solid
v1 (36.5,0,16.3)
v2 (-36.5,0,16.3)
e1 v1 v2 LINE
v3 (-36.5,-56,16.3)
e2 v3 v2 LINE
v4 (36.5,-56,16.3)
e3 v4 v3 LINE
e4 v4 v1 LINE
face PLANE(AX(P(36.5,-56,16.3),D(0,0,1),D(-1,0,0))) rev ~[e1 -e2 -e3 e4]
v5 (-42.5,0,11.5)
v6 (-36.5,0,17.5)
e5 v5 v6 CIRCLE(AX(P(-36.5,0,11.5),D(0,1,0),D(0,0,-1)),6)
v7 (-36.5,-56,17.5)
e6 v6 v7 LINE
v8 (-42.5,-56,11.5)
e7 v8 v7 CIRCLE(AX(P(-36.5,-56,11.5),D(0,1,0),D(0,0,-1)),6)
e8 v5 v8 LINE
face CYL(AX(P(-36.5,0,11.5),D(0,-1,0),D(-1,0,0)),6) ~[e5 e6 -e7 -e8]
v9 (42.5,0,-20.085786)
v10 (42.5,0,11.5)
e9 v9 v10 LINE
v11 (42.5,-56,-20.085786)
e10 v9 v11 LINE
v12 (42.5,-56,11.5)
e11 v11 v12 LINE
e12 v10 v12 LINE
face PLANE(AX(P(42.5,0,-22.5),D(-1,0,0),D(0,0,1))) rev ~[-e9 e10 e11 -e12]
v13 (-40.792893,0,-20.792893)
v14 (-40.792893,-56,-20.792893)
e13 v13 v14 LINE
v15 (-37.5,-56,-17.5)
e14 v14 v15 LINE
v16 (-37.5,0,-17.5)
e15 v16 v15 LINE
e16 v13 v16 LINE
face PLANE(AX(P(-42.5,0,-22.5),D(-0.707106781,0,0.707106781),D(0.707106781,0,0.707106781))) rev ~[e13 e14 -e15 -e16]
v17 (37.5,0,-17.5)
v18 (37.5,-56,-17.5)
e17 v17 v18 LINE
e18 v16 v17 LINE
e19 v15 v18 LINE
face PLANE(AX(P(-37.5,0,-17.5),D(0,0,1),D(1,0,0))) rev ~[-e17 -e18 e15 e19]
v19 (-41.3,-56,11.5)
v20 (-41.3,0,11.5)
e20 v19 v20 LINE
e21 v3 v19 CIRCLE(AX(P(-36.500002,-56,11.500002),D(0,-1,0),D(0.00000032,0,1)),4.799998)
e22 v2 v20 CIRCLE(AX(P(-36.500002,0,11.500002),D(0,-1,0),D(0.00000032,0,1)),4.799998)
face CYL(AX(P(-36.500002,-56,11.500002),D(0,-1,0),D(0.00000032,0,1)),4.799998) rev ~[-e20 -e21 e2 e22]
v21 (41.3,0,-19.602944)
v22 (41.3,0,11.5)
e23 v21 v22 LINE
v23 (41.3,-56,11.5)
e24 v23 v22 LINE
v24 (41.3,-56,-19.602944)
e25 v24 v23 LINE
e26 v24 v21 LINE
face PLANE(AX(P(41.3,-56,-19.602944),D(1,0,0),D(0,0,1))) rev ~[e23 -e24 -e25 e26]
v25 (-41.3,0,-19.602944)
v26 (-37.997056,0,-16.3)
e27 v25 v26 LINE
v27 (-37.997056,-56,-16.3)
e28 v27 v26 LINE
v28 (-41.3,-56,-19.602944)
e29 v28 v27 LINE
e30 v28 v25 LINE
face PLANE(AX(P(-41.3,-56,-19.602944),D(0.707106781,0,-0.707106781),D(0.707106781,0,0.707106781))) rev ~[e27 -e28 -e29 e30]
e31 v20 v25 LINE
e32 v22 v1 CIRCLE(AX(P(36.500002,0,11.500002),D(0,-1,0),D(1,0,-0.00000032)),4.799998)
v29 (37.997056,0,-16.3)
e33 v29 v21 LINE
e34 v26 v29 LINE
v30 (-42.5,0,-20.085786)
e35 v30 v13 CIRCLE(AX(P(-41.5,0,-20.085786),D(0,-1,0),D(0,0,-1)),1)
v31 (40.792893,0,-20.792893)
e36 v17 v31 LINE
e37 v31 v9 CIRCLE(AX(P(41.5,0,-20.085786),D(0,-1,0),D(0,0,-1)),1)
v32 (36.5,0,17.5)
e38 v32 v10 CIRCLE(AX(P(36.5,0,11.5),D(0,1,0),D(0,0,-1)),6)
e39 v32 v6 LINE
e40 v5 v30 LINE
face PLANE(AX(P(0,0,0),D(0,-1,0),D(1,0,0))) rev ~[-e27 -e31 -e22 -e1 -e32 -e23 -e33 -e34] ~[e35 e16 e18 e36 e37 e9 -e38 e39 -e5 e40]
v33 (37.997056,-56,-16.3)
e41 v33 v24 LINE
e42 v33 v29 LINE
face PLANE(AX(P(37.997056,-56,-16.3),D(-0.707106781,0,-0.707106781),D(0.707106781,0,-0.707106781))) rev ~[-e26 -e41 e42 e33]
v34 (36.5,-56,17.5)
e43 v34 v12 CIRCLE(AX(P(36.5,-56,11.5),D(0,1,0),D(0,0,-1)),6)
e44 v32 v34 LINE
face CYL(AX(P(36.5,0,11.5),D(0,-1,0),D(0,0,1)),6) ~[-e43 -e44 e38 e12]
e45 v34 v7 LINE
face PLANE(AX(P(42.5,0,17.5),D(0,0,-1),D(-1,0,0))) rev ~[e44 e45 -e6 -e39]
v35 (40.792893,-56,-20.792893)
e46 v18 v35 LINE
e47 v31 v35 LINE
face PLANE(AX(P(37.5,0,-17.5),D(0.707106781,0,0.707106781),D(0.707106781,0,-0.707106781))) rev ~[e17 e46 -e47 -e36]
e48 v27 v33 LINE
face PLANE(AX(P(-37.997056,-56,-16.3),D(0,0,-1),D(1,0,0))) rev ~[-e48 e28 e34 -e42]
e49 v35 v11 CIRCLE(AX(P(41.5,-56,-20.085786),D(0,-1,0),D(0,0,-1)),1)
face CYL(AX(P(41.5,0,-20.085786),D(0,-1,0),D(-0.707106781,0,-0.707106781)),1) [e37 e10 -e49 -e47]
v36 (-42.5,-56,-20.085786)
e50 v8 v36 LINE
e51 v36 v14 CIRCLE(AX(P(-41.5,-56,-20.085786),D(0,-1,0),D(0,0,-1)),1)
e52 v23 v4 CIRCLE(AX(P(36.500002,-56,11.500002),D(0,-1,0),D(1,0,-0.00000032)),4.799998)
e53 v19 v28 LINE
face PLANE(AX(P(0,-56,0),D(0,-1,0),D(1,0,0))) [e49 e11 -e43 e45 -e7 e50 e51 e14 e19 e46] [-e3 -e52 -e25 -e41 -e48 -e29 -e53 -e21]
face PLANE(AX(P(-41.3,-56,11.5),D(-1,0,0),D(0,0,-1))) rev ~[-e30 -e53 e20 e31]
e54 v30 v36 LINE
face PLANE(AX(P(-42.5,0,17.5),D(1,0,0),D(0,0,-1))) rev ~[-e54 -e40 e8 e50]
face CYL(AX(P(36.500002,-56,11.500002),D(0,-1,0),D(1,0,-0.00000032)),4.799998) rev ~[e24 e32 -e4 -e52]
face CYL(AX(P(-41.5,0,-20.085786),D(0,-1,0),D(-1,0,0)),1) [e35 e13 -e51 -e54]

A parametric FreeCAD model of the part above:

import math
import FreeCAD as App
import Part
import Sketcher

V = App.Vector


def edges_at(feature, points):
    """Names of the edges that pass closest to the given points."""
    edges = feature.Shape.Edges
    near = lambda p: min(range(len(edges)), key=lambda i: edges[i].distToShape(Part.Vertex(*p))[0])
    return sorted({f"Edge{near(p) + 1}" for p in points})


def add_polygon(sketch, points):
    """Adds a closed chain of lines whose ends are joined by coincident constraints."""
    first, n = sketch.GeometryCount, len(points)
    for a, b in zip(points, points[1:] + points[:1]):
        sketch.addGeometry(Part.LineSegment(App.Vector(*a, 0), App.Vector(*b, 0)), False)
    for i in range(n):
        sketch.addConstraint(Sketcher.Constraint("Coincident", first + i, 2, first + (i + 1) % n, 1))

doc = App.newDocument("Part")
params = doc.addObject("Spreadsheet::Sheet", "Params")
for row, (alias, value) in enumerate([
    ("sketch1_width", "85 mm"),
    ("sketch1_width2", "75 mm"),
    ("sketch1_height", "40 mm"),
    ("pad1_length", "56 mm"),
    ("fillet_radius", "1 mm"),
    ("fillet2_radius", "6 mm"),
    ("sketch2_radius", "4.799998 mm"),
    ("sketch2_width", "73 mm"),
    ("pocket1_length", "99.1 mm"),
], start=1):
    params.set(f"A{row}", alias)
    params.set(f"B{row}", "=" + value)
    params.setAlias(f"B{row}", alias)

body = doc.addObject("PartDesign::Body", "Body")

# Sketch on XZ plane
sketch1 = body.newObject("Sketcher::SketchObject", "Sketch")
sketch1.AttachmentSupport = (doc.getObject("XZ_Plane"), [""])
sketch1.MapMode = "FlatFace"
add_polygon(sketch1, [(42.5, 17.5), (-42.5, 17.5), (-42.5, -22.5), (-37.5, -17.5), (37.5, -17.5), (42.5, -22.5)])  # lines 0-5
sketch1.addConstraint([
    Sketcher.Constraint("Horizontal", 0),
    Sketcher.Constraint("Vertical", 1),
    Sketcher.Constraint("Horizontal", 3),
    Sketcher.Constraint("Vertical", 5),
    Sketcher.Constraint("Symmetric", 1, 2, 4, 2, -2),
    Sketcher.Constraint("Perpendicular", 2, 4),
    Sketcher.Constraint("Equal", 2, 4),
    Sketcher.Constraint("DistanceX", 0, 2, 0, 1, 85.0),
    Sketcher.Constraint("DistanceX", 3, 1, 3, 2, 75.0),
    Sketcher.Constraint("DistanceY", 1, 2, 1, 1, 40.0),
    Sketcher.Constraint("DistanceY", -1, 1, 0, 2, 17.5),
])
sketch1.setExpression("Constraints[13]", "Params.sketch1_width")
sketch1.setExpression("Constraints[14]", "Params.sketch1_width2")
sketch1.setExpression("Constraints[15]", "Params.sketch1_height")
pad1 = body.newObject("PartDesign::Pad", "Pad")
pad1.Profile = sketch1
pad1.setExpression("Length", "Params.pad1_length")
doc.recompute()

fillet = body.newObject("PartDesign::Fillet", "Fillet")
fillet.Base = (pad1, edges_at(pad1, [(-42.5, -28, -22.5), (42.5, -28, -22.5)]))
fillet.setExpression("Radius", "Params.fillet_radius")
doc.recompute()

fillet2 = body.newObject("PartDesign::Fillet", "Fillet001")
fillet2.Base = (fillet, edges_at(fillet, [(-42.5, -28, 17.5), (42.5, -28, 17.5)]))
fillet2.setExpression("Radius", "Params.fillet2_radius")

# Sketch on XZ plane
sketch2 = body.newObject("Sketcher::SketchObject", "Sketch001")
sketch2.AttachmentSupport = (doc.getObject("XZ_Plane"), [""])
sketch2.MapMode = "FlatFace"
sketch2.AttachmentOffset = App.Placement(V(0, 0, 56), App.Rotation())
sketch2.addGeometry([
    Part.LineSegment(V(-37.997056, -16.3, 0), V(37.997056, -16.3, 0)),  # 0
    Part.LineSegment(V(37.997056, -16.3, 0), V(41.3, -19.602944, 0)),  # 1
    Part.LineSegment(V(41.3, -19.602944, 0), V(41.3, 11.5, 0)),  # 2
    Part.ArcOfCircle(Part.Circle(V(36.500002, 11.500002, 0), V(0, 0, 1), 4.799998), math.radians(-0.000018), math.radians(90.000018)),  # 3
    Part.LineSegment(V(36.5, 16.3, 0), V(-36.5, 16.3, 0)),  # 4
    Part.ArcOfCircle(Part.Circle(V(-36.500002, 11.500002, 0), V(0, 0, 1), 4.799998), math.radians(89.999982), math.radians(180.000018)),  # 5
    Part.LineSegment(V(-41.3, 11.5, 0), V(-41.3, -19.602944, 0)),  # 6
    Part.LineSegment(V(-41.3, -19.602944, 0), V(-37.997056, -16.3, 0)),  # 7
], False)
sketch2.addConstraint([
    Sketcher.Constraint("Coincident", 0, 2, 1, 1),
    Sketcher.Constraint("Coincident", 1, 2, 2, 1),
    Sketcher.Constraint("Tangent", 2, 2, 3, 1),
    Sketcher.Constraint("Tangent", 3, 2, 4, 1),
    Sketcher.Constraint("Tangent", 4, 2, 5, 1),
    Sketcher.Constraint("Tangent", 5, 2, 6, 1),
    Sketcher.Constraint("Coincident", 6, 2, 7, 1),
    Sketcher.Constraint("Coincident", 7, 2, 0, 1),
    Sketcher.Constraint("Horizontal", 0),
    Sketcher.Constraint("Vertical", 2),
    Sketcher.Constraint("Horizontal", 4),
    Sketcher.Constraint("Vertical", 6),
    Sketcher.Constraint("Equal", 3, 5),
    Sketcher.Constraint("Symmetric", 1, 2, 6, 2, -2),
    Sketcher.Constraint("Perpendicular", 1, 7),
    Sketcher.Constraint("Equal", 1, 7),
    Sketcher.Constraint("Radius", 3, 4.799998),
    Sketcher.Constraint("DistanceX", 4, 2, 4, 1, 73.0),
    Sketcher.Constraint("DistanceY", -1, 1, 3, 3, 11.500002),
    Sketcher.Constraint("DistanceY", 0, 2, -1, 1, 16.3),
    Sketcher.Constraint("DistanceX", 0, 1, 0, 2, 75.994112),
])
sketch2.setExpression("Constraints[16]", "Params.sketch2_radius")
sketch2.setExpression("Constraints[17]", "Params.sketch2_width")
pocket1 = body.newObject("PartDesign::Pocket", "Pocket")
pocket1.Profile = sketch2
pocket1.setExpression("Length", "Params.pocket1_length")

doc.recompute()
